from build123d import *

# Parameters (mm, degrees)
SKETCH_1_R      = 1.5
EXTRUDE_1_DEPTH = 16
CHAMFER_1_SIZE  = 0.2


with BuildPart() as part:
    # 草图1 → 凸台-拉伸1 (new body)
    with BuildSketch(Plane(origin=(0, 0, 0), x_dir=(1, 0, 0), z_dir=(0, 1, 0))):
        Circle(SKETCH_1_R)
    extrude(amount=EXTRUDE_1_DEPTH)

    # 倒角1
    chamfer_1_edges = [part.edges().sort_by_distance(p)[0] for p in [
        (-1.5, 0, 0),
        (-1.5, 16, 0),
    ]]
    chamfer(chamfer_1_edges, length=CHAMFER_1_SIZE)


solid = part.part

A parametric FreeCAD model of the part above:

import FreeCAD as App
import Part
import Sketcher


def edges_at(feature, points):
    """Names of the edges that pass closest to the given points."""
    edges = feature.Shape.Edges
    near = lambda p: min(range(len(edges)), key=lambda i: edges[i].distToShape(Part.Vertex(*p))[0])
    return sorted({f"Edge{near(p) + 1}" for p in points})

doc = App.newDocument("Part")
body = doc.addObject("PartDesign::Body", "Body")

# Sketch on XZ plane
sketch1 = doc.addObject("Sketcher::SketchObject", "Sketch")
body.addObject(sketch1)
sketch1.AttachmentSupport = (doc.XZ_Plane, [""])
sketch1.MapMode = "FlatFace"
sketch1.addGeometry(Part.Circle(App.Vector(0, 0, 0), App.Vector(0, 0, 1), 1.5), False)
sketch1.addConstraint([
    Sketcher.Constraint("Coincident", 0, 3, -1, 1),
    Sketcher.Constraint("Diameter", 0, 3.0),
])
pad1 = doc.addObject("PartDesign::Pad", "Pad")
body.addObject(pad1)
pad1.Profile = sketch1
pad1.Length = 16
pad1.Reversed = True
doc.recompute()

chamfer = doc.addObject("PartDesign::Chamfer", "Chamfer")
body.addObject(chamfer)
chamfer.Base = (pad1, edges_at(pad1, [(-1.5, 0, 0), (-1.5, 16, 0)]))
chamfer.Size = 0.2

doc.recompute()
